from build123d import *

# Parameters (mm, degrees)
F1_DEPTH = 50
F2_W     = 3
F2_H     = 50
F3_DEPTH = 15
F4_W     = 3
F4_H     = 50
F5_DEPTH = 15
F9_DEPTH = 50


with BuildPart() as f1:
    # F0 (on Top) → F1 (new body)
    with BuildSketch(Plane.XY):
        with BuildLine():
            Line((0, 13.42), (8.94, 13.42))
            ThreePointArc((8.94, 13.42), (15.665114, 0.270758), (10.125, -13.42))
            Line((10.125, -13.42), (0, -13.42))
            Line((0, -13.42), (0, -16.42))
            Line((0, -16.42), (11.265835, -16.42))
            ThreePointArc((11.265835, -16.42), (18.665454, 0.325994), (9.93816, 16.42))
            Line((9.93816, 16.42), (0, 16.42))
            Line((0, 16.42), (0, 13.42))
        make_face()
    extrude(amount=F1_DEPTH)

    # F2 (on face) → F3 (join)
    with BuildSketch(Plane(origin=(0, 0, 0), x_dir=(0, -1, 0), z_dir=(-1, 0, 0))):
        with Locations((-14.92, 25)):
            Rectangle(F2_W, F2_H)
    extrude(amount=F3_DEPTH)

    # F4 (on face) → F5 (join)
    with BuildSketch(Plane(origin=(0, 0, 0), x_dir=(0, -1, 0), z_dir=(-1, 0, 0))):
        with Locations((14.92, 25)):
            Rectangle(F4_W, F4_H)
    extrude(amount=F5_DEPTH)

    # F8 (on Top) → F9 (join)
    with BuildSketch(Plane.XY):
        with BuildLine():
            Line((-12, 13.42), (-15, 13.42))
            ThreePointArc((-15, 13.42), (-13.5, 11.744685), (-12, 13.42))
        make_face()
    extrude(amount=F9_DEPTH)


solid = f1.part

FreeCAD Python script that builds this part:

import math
import FreeCAD as App
import Part
import Sketcher
from FreeCAD import Vector
Q = App.Units.Quantity


def add_polygon(sketch, points):
    """Adds a closed chain of lines whose ends are joined by coincident constraints."""
    first, n = sketch.GeometryCount, len(points)
    for a, b in zip(points, points[1:] + points[:1]):
        sketch.addGeometry(Part.LineSegment(App.Vector(*a, 0), App.Vector(*b, 0)), False)
    for i in range(n):
        sketch.addConstraint(Sketcher.Constraint("Coincident", first + i, 2, first + (i + 1) % n, 1))

doc = App.newDocument("Part")
body = doc.addObject("PartDesign::Body", "Body")

# Sketch on XY plane
sketch1 = body.newObject("Sketcher::SketchObject", "Sketch")
sketch1.AttachmentSupport = (doc.getObject("XY_Plane"), [""])
sketch1.MapMode = "FlatFace"
sketch1.addGeometry(Part.LineSegment(Vector(0, 13.4, 0), Vector(8.9, 13.4, 0)), False)
sketch1.addGeometry(Part.ArcOfCircle(Part.Circle(Vector(-2.1, -0.5, 0), Vector(0, 0, 1), 17.8), math.radians(-47), math.radians(52)), False)
sketch1.addGeometry(Part.LineSegment(Vector(10.1, -13.4, 0), Vector(0, -13.4, 0)), False)
sketch1.addGeometry(Part.LineSegment(Vector(0, -13.4, 0), Vector(0, -16.4, 0)), False)
sketch1.addGeometry(Part.LineSegment(Vector(0, -16.4, 0), Vector(11.3, -16.4, 0)), False)
sketch1.addGeometry(Part.ArcOfCircle(Part.Circle(Vector(-2.1, -0.5, 0), Vector(0, 0, 1), 20.8), math.radians(-50), math.radians(55)), False)
sketch1.addGeometry(Part.LineSegment(Vector(9.9, 16.4, 0), Vector(0, 16.4, 0)), False)
sketch1.addGeometry(Part.LineSegment(Vector(0, 16.4, 0), Vector(0, 13.4, 0)), False)
sketch1.addConstraint(Sketcher.Constraint("Coincident", 0, 2, 1, 2))
sketch1.addConstraint(Sketcher.Constraint("Coincident", 1, 1, 2, 1))
sketch1.addConstraint(Sketcher.Constraint("Coincident", 2, 2, 3, 1))
sketch1.addConstraint(Sketcher.Constraint("Coincident", 3, 2, 4, 1))
sketch1.addConstraint(Sketcher.Constraint("Coincident", 4, 2, 5, 1))
sketch1.addConstraint(Sketcher.Constraint("Coincident", 5, 2, 6, 1))
sketch1.addConstraint(Sketcher.Constraint("Coincident", 6, 2, 7, 1))
sketch1.addConstraint(Sketcher.Constraint("Coincident", 7, 2, 0, 1))
sketch1.addConstraint(Sketcher.Constraint("Horizontal", 0))
sketch1.addConstraint(Sketcher.Constraint("Horizontal", 2))
sketch1.addConstraint(Sketcher.Constraint("Vertical", 3))
sketch1.addConstraint(Sketcher.Constraint("Horizontal", 4))
sketch1.addConstraint(Sketcher.Constraint("Horizontal", 6))
sketch1.addConstraint(Sketcher.Constraint("Vertical", 7))
sketch1.addConstraint(Sketcher.Constraint("Coincident", 5, 3, 1, 3))
sketch1.addConstraint(Sketcher.Constraint("Symmetric", 3, 2, 6, 2, -1, 1))
sketch1.addConstraint(Sketcher.Constraint("Symmetric", 2, 2, 7, 2, -1))
sketch1.addConstraint(Sketcher.Constraint("DistanceY", 3, 2, 3, 1, Q("3 mm")))
sketch1.addConstraint(Sketcher.Constraint("DistanceX", 0, 1, 0, 2, Q("8.94 mm")))
sketch1.addConstraint(Sketcher.Constraint("DistanceX", 2, 2, 2, 1, Q("10.125 mm")))
sketch1.addConstraint(Sketcher.Constraint("DistanceY", -1, 1, 0, 2, Q("13.42 mm")))
sketch1.addConstraint(Sketcher.Constraint("Radius", 1, Q("17.767092 mm")))
sketch1.addConstraint(Sketcher.Constraint("Radius", 5, Q("20.767093 mm")))
pad1 = body.newObject("PartDesign::Pad", "Pad")
pad1.Profile = sketch1
pad1.Length = 50

# Sketch on YZ plane
sketch2 = body.newObject("Sketcher::SketchObject", "Sketch001")
sketch2.AttachmentSupport = (doc.getObject("YZ_Plane"), [""])
sketch2.MapMode = "FlatFace"
add_polygon(sketch2, [(16.4, 50), (16.4, 0), (13.4, 0), (13.4, 50)])  # lines 0-3
sketch2.addConstraint(Sketcher.Constraint("Vertical", 0))
sketch2.addConstraint(Sketcher.Constraint("Horizontal", 1))
sketch2.addConstraint(Sketcher.Constraint("Vertical", 2))
sketch2.addConstraint(Sketcher.Constraint("Horizontal", 3))
sketch2.addConstraint(Sketcher.Constraint("PointOnObject", 0, 2, -1))
sketch2.addConstraint(Sketcher.Constraint("DistanceX", 1, 2, 1, 1, Q("3 mm")))
sketch2.addConstraint(Sketcher.Constraint("DistanceY", 0, 2, 0, 1, Q("50 mm")))
sketch2.addConstraint(Sketcher.Constraint("DistanceX", -1, 1, 0, 2, Q("16.42 mm")))
pad2 = body.newObject("PartDesign::Pad", "Pad001")
pad2.Profile = sketch2
pad2.Length = 15
pad2.Reversed = True

# Sketch on YZ plane
sketch3 = body.newObject("Sketcher::SketchObject", "Sketch002")
sketch3.AttachmentSupport = (doc.getObject("YZ_Plane"), [""])
sketch3.MapMode = "FlatFace"
add_polygon(sketch3, [(-13.4, 50), (-13.4, 0), (-16.4, 0), (-16.4, 50)])  # lines 0-3
sketch3.addConstraint(Sketcher.Constraint("Vertical", 0))
sketch3.addConstraint(Sketcher.Constraint("Horizontal", 1))
sketch3.addConstraint(Sketcher.Constraint("Vertical", 2))
sketch3.addConstraint(Sketcher.Constraint("Horizontal", 3))
sketch3.addConstraint(Sketcher.Constraint("PointOnObject", 0, 2, -1))
sketch3.addConstraint(Sketcher.Constraint("DistanceX", 1, 2, 1, 1, Q("3 mm")))
sketch3.addConstraint(Sketcher.Constraint("DistanceY", 0, 2, 0, 1, Q("50 mm")))
sketch3.addConstraint(Sketcher.Constraint("DistanceX", 0, 2, -1, 1, Q("13.42 mm")))
pad3 = body.newObject("PartDesign::Pad", "Pad002")
pad3.Profile = sketch3
pad3.Length = 15
pad3.Reversed = True

# Sketch on XY plane
sketch4 = body.newObject("Sketcher::SketchObject", "Sketch003")
sketch4.AttachmentSupport = (doc.getObject("XY_Plane"), [""])
sketch4.MapMode = "FlatFace"
sketch4.addGeometry(Part.LineSegment(Vector(-12, 13.4, 0), Vector(-15, 13.4, 0)), False)
sketch4.addGeometry(Part.ArcOfCircle(Part.Circle(Vector(-13.5, 13.3, 0), Vector(0, 0, 1), 1.5), math.radians(174), math.radians(366)), False)
sketch4.addConstraint(Sketcher.Constraint("Coincident", 0, 1, 1, 2))
sketch4.addConstraint(Sketcher.Constraint("Coincident", 1, 1, 0, 2))
sketch4.addConstraint(Sketcher.Constraint("Horizontal", 0))
sketch4.addConstraint(Sketcher.Constraint("DistanceX", 0, 2, 0, 1, Q("3 mm")))
sketch4.addConstraint(Sketcher.Constraint("DistanceX", 0, 1, -1, 1, Q("12 mm")))
sketch4.addConstraint(Sketcher.Constraint("DistanceY", -1, 1, 0, 1, Q("13.42 mm")))
sketch4.addConstraint(Sketcher.Constraint("Radius", 1, Q("1.509173 mm")))
pad4 = body.newObject("PartDesign::Pad", "Pad003")
pad4.Profile = sketch4
pad4.Length = 50

doc.recompute()
